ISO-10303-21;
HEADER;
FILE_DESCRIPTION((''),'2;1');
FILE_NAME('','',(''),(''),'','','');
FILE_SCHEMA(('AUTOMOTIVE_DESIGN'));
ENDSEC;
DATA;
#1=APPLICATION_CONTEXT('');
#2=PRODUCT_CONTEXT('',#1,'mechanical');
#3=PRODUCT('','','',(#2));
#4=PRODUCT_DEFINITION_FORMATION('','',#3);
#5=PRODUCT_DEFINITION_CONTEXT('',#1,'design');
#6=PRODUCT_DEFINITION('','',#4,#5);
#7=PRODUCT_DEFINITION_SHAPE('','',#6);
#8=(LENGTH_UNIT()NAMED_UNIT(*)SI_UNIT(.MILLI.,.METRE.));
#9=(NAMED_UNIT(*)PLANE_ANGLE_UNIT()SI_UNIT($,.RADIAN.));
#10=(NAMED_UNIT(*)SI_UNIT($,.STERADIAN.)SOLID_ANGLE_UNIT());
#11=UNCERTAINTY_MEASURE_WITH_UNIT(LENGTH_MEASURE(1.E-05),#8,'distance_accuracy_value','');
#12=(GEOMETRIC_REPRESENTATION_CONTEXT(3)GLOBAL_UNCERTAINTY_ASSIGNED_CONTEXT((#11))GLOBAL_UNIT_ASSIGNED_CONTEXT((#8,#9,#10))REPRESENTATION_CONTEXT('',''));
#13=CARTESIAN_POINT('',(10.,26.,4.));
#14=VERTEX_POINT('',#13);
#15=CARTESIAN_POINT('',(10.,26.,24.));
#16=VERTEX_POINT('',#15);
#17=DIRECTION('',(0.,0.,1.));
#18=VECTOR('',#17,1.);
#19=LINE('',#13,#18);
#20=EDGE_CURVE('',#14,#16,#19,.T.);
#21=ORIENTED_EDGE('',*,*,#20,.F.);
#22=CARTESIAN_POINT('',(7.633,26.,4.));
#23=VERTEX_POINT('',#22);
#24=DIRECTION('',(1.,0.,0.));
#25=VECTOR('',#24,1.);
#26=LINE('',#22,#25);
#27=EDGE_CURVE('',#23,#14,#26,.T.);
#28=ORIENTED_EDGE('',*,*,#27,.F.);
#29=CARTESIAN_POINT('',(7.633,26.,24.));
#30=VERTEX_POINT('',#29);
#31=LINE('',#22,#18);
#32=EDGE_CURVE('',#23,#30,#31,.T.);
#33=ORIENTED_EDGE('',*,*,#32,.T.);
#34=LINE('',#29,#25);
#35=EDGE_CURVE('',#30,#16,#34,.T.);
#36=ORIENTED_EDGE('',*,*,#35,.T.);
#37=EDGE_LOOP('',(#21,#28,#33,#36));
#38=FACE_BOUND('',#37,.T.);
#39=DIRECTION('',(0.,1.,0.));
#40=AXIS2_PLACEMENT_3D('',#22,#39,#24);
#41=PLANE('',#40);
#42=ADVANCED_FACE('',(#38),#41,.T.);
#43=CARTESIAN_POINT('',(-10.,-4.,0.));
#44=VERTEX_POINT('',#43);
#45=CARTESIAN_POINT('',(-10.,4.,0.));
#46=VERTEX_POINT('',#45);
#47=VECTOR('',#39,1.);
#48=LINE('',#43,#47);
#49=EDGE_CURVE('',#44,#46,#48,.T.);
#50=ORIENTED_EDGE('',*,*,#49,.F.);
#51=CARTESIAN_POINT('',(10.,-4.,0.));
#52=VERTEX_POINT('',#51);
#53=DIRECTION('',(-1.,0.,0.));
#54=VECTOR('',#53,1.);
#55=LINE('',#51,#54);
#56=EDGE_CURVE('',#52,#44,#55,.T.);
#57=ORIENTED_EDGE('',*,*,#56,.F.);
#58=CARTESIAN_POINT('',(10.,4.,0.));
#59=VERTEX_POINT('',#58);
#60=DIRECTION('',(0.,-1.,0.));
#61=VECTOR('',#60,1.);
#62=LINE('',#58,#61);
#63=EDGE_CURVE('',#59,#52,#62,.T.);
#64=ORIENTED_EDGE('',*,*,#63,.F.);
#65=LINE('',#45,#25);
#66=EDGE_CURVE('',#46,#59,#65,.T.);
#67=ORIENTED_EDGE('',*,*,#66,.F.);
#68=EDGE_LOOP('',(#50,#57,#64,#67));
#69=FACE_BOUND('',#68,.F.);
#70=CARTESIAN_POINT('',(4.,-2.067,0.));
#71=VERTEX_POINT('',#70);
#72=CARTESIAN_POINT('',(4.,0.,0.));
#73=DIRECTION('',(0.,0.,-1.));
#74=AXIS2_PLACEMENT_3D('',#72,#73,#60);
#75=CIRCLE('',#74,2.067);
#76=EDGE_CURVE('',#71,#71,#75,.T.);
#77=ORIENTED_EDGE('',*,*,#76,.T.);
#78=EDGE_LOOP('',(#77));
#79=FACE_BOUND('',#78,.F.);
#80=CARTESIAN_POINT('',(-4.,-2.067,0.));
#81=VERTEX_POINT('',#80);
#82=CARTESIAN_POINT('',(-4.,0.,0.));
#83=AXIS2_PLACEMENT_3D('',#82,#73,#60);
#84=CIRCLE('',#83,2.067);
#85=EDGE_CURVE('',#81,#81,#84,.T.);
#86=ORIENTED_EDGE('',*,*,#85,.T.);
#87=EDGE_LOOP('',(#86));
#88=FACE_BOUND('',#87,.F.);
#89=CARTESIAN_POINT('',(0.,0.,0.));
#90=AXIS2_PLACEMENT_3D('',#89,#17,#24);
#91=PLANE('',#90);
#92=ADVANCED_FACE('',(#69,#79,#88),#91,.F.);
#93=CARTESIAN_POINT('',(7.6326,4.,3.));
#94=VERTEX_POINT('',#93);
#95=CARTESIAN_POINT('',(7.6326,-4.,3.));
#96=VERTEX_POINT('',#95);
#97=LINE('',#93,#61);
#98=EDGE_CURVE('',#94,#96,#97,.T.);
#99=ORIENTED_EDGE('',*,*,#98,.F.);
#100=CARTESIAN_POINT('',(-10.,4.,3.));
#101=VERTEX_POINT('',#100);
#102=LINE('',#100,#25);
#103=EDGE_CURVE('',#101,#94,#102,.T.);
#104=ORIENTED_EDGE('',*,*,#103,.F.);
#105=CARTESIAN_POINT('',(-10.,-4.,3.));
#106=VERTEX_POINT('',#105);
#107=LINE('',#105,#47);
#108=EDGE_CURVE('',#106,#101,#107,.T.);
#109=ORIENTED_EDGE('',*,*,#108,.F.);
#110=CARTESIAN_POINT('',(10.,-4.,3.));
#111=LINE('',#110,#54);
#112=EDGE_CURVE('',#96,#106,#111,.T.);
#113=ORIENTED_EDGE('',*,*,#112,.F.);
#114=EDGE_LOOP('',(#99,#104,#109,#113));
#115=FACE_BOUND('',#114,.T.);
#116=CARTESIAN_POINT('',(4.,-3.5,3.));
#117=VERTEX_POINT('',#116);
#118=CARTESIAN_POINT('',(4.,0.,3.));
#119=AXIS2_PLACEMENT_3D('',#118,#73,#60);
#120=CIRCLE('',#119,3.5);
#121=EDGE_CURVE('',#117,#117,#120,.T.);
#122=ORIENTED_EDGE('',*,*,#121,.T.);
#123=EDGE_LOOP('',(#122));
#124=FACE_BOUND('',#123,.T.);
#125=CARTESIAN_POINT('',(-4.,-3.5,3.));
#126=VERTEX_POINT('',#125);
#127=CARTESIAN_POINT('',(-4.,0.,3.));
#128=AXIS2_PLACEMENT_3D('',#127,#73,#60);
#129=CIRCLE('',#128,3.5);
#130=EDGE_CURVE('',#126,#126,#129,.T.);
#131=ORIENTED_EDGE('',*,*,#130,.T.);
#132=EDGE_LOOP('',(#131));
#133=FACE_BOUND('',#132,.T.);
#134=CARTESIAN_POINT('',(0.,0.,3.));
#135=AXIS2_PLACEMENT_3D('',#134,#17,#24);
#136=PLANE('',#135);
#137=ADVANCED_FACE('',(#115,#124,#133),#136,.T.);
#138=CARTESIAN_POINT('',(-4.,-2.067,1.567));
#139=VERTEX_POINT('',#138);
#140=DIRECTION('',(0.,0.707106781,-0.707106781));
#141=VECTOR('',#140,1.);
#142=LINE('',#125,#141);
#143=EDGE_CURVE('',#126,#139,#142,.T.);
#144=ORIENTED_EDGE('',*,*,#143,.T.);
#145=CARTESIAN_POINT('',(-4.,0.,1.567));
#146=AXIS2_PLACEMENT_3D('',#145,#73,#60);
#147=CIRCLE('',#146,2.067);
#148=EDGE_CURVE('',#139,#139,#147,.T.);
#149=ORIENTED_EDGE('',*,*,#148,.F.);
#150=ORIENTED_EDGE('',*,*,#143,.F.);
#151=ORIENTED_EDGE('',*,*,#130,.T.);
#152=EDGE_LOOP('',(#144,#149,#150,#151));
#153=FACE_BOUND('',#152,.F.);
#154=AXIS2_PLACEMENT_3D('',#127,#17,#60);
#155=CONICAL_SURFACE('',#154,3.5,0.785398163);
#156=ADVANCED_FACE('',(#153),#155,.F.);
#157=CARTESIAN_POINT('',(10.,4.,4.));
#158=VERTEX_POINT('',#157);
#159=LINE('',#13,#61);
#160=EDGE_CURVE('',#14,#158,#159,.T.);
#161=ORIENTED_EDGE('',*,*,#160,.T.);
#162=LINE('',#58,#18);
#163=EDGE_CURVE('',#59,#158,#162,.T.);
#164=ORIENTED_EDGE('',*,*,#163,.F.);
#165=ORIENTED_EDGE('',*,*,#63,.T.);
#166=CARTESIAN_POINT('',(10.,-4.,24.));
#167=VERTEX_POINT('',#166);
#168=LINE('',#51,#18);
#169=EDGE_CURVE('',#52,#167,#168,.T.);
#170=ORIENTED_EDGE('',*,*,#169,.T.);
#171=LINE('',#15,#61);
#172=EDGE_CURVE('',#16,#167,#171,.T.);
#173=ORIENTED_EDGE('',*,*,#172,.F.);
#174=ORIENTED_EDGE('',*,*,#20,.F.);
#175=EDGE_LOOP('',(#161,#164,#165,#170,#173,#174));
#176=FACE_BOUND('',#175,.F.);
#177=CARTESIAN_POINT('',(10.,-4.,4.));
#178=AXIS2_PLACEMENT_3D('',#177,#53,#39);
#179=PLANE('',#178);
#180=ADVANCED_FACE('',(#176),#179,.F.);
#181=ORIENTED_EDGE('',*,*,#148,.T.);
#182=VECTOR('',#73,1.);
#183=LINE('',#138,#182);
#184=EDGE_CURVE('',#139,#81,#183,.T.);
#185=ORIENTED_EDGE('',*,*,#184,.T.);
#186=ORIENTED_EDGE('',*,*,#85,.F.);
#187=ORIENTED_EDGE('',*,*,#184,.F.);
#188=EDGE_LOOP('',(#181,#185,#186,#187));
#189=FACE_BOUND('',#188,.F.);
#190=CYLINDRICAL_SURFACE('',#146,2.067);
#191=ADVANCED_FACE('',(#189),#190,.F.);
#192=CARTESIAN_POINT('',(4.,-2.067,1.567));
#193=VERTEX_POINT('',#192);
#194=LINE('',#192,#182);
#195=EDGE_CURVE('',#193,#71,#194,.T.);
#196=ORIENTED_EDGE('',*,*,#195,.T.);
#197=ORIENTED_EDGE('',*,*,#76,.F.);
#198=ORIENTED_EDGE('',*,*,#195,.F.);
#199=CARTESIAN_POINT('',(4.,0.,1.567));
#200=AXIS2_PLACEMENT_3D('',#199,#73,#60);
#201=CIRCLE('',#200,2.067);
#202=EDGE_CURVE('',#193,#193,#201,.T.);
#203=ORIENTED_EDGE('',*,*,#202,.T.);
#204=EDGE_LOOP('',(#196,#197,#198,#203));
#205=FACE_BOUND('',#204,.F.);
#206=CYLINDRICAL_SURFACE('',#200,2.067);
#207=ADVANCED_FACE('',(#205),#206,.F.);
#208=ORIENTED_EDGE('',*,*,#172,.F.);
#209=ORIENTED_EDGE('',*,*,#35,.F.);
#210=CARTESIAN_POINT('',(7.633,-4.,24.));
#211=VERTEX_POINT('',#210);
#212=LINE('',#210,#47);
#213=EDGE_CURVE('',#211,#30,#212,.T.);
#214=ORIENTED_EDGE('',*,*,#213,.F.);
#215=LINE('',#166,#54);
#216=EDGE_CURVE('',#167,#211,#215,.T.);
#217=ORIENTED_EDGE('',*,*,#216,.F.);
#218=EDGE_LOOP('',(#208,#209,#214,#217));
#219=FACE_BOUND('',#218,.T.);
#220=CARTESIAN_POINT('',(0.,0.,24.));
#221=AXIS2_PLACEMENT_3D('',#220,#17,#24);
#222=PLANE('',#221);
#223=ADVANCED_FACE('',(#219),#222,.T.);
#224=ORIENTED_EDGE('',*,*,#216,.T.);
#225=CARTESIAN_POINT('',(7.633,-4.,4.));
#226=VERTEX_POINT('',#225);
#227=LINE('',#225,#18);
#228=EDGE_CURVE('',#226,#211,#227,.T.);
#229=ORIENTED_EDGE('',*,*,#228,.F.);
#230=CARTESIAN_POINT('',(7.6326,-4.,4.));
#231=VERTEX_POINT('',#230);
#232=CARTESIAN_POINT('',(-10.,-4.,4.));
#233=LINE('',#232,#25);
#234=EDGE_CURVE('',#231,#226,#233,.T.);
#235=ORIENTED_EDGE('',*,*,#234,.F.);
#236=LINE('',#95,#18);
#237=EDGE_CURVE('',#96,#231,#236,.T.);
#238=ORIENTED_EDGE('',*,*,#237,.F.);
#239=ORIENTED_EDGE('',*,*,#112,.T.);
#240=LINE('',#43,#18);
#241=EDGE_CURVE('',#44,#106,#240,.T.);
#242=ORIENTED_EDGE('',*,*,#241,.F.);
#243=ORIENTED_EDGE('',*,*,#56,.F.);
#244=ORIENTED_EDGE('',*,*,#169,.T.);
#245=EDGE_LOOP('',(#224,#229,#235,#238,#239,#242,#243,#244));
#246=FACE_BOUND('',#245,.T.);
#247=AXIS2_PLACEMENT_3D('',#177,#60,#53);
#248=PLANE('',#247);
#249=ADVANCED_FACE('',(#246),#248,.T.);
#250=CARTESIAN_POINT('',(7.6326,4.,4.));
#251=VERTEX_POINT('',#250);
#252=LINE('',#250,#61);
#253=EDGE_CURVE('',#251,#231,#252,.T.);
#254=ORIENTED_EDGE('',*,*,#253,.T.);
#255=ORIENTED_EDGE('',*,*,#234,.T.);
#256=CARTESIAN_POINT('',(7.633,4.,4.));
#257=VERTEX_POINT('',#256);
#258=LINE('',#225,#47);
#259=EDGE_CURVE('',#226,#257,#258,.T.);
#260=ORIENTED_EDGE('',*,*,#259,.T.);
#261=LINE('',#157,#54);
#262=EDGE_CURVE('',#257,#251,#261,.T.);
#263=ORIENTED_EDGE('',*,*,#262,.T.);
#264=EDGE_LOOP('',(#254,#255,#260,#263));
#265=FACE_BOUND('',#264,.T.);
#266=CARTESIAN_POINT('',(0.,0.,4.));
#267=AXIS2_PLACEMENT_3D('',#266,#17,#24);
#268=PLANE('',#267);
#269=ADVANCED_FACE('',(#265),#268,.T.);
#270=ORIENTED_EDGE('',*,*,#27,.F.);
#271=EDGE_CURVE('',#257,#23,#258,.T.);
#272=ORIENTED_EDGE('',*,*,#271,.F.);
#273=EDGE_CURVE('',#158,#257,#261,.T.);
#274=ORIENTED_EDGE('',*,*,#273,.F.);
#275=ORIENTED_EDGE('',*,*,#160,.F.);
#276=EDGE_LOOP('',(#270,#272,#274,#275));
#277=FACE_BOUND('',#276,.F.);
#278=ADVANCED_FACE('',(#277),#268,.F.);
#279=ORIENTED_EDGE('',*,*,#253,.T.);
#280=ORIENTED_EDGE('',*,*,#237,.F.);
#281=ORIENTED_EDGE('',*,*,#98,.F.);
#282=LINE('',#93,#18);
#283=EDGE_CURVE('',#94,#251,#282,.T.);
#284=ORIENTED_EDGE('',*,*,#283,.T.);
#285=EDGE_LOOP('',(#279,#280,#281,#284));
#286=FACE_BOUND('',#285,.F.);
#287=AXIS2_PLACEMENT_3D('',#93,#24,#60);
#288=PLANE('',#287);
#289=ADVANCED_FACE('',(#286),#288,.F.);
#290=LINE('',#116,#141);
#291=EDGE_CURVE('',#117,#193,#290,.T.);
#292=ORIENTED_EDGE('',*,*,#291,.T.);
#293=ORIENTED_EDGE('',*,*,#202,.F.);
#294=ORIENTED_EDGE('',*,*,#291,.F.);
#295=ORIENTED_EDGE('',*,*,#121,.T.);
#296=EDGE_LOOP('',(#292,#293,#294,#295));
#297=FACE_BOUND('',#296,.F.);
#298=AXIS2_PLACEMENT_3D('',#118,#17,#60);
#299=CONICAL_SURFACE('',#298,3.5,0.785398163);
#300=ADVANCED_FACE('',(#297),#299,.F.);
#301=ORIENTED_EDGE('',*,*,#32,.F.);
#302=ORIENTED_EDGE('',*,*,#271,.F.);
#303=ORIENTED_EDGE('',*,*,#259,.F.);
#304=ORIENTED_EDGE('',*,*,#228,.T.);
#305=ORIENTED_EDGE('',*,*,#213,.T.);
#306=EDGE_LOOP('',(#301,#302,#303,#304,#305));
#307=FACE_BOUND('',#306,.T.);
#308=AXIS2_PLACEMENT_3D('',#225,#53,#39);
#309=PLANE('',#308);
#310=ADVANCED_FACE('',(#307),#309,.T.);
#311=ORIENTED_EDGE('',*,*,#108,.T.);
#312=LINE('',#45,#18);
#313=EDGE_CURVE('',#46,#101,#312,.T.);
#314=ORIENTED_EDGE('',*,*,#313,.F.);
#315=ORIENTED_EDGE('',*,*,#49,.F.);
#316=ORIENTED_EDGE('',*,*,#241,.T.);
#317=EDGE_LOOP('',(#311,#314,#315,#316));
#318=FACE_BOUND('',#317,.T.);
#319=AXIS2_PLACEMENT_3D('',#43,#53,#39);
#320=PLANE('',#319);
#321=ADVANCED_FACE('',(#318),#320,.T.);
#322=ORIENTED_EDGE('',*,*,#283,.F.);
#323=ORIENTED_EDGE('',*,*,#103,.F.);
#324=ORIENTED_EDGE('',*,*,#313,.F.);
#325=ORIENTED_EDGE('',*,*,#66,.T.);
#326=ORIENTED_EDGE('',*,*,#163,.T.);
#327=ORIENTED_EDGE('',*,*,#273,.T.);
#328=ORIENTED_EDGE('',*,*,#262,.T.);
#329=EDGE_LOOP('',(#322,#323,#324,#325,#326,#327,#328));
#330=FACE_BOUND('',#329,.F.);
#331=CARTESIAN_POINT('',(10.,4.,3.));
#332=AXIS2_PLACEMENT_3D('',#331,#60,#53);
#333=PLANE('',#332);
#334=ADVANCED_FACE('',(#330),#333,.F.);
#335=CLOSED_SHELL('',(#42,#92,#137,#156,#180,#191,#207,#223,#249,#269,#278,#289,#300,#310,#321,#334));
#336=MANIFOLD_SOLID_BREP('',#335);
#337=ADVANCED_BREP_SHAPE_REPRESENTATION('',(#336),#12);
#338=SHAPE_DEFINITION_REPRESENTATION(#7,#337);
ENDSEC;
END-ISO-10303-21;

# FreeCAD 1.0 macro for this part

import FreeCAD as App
import Part
import Sketcher

V = App.Vector


def add_polygon(sketch, points):
    """Adds a closed chain of lines whose ends are joined by coincident constraints."""
    first, n = sketch.GeometryCount, len(points)
    for a, b in zip(points, points[1:] + points[:1]):
        sketch.addGeometry(Part.LineSegment(App.Vector(*a, 0), App.Vector(*b, 0)), False)
    for i in range(n):
        sketch.addConstraint(Sketcher.Constraint("Coincident", first + i, 2, first + (i + 1) % n, 1))

doc = App.newDocument("Part")
body = doc.addObject("PartDesign::Body", "Body")

# Sketch on XY plane
sketch1 = doc.addObject("Sketcher::SketchObject", "Sketch")
body.addObject(sketch1)
sketch1.AttachmentSupport = (doc.XY_Plane, [""])
sketch1.MapMode = "FlatFace"
add_polygon(sketch1, [(10, 4), (-10, 4), (-10, -4), (10, -4)])  # lines 0-3
sketch1.addConstraint(Sketcher.Constraint("Horizontal", 0))
sketch1.addConstraint(Sketcher.Constraint("Vertical", 1))
sketch1.addConstraint(Sketcher.Constraint("Horizontal", 2))
sketch1.addConstraint(Sketcher.Constraint("Vertical", 3))
sketch1.addConstraint(Sketcher.Constraint("Symmetric", 0, 2, 2, 2, -1, 1))
sketch1.addConstraint(Sketcher.Constraint("DistanceX", 0, 2, 0, 1, 20.0))
sketch1.addConstraint(Sketcher.Constraint("DistanceY", 1, 2, 1, 1, 8.0))
pad1 = doc.addObject("PartDesign::Pad", "Pad")
body.addObject(pad1)
pad1.Profile = sketch1
pad1.Length = 3

# Sketch on XY plane
sketch2 = doc.addObject("Sketcher::SketchObject", "Sketch001")
body.addObject(sketch2)
sketch2.AttachmentSupport = (doc.XY_Plane, [""])
sketch2.MapMode = "FlatFace"
sketch2.AttachmentOffset = App.Placement(V(0, 0, 3), App.Rotation())
sketch2.addGeometry(Part.Circle(V(-4, 0, 0), V(0, 0, 1), 2.067), False)
sketch2.addGeometry(Part.Circle(V(4, 0, 0), V(0, 0, 1), 2.067), False)
sketch2.addConstraint(Sketcher.Constraint("Equal", 0, 1))
sketch2.addConstraint(Sketcher.Constraint("Symmetric", 0, 3, 1, 3, -1, 1))
sketch2.addConstraint(Sketcher.Constraint("PointOnObject", 0, 3, -1))
sketch2.addConstraint(Sketcher.Constraint("Diameter", 0, 4.134))
sketch2.addConstraint(Sketcher.Constraint("DistanceX", 0, 3, -1, 1, 4.0))
doc.recompute()
hole = doc.addObject("PartDesign::Hole", "Hole")
body.addObject(hole)
hole.Profile = sketch2
hole.ThreadType = "None"
hole.Diameter = 4.134
hole.DepthType = "Dimension"
hole.Depth = 7
hole.DrillPoint = "Angled"
hole.DrillPointAngle = 118
hole.HoleCutType = "Countersink"
hole.HoleCutDiameter = 7
hole.HoleCutCountersinkAngle = 90

# Sketch on XY plane
sketch3 = doc.addObject("Sketcher::SketchObject", "Sketch002")
body.addObject(sketch3)
sketch3.AttachmentSupport = (doc.XY_Plane, [""])
sketch3.MapMode = "FlatFace"
sketch3.AttachmentOffset = App.Placement(V(0, 0, 3), App.Rotation())
add_polygon(sketch3, [(10, -4), (10, 4), (7.6326, 4), (7.6326, -4)])  # lines 0-3
sketch3.addConstraint(Sketcher.Constraint("Vertical", 0))
sketch3.addConstraint(Sketcher.Constraint("Horizontal", 1))
sketch3.addConstraint(Sketcher.Constraint("Vertical", 2))
sketch3.addConstraint(Sketcher.Constraint("Horizontal", 3))
sketch3.addConstraint(Sketcher.Constraint("DistanceY", 0, 1, 0, 2, 8.0))
sketch3.addConstraint(Sketcher.Constraint("DistanceX", -1, 1, 0, 2, 10.0))
sketch3.addConstraint(Sketcher.Constraint("DistanceY", -1, 1, 0, 2, 4.0))
sketch3.addConstraint(Sketcher.Constraint("DistanceX", 1, 2, 1, 1, 2.3674))
pad2 = doc.addObject("PartDesign::Pad", "Pad001")
body.addObject(pad2)
pad2.Profile = sketch3
pad2.Length = 1

# Sketch on XY plane
sketch4 = doc.addObject("Sketcher::SketchObject", "Sketch003")
body.addObject(sketch4)
sketch4.AttachmentSupport = (doc.XY_Plane, [""])
sketch4.MapMode = "FlatFace"
sketch4.AttachmentOffset = App.Placement(V(0, 0, 4), App.Rotation())
add_polygon(sketch4, [(7.633, -4), (10, -4), (10, 26), (7.633, 26)])  # lines 0-3
sketch4.addConstraint(Sketcher.Constraint("Horizontal", 0))
sketch4.addConstraint(Sketcher.Constraint("Vertical", 1))
sketch4.addConstraint(Sketcher.Constraint("Horizontal", 2))
sketch4.addConstraint(Sketcher.Constraint("Vertical", 3))
sketch4.addConstraint(Sketcher.Constraint("DistanceY", 1, 1, 1, 2, 30.0))
sketch4.addConstraint(Sketcher.Constraint("DistanceX", 0, 1, 0, 2, 2.367))
sketch4.addConstraint(Sketcher.Constraint("DistanceX", -1, 1, 0, 2, 10.0))
sketch4.addConstraint(Sketcher.Constraint("DistanceY", 0, 2, -1, 1, 4.0))
pad3 = doc.addObject("PartDesign::Pad", "Pad002")
body.addObject(pad3)
pad3.Profile = sketch4
pad3.Length = 20

doc.recompute()
